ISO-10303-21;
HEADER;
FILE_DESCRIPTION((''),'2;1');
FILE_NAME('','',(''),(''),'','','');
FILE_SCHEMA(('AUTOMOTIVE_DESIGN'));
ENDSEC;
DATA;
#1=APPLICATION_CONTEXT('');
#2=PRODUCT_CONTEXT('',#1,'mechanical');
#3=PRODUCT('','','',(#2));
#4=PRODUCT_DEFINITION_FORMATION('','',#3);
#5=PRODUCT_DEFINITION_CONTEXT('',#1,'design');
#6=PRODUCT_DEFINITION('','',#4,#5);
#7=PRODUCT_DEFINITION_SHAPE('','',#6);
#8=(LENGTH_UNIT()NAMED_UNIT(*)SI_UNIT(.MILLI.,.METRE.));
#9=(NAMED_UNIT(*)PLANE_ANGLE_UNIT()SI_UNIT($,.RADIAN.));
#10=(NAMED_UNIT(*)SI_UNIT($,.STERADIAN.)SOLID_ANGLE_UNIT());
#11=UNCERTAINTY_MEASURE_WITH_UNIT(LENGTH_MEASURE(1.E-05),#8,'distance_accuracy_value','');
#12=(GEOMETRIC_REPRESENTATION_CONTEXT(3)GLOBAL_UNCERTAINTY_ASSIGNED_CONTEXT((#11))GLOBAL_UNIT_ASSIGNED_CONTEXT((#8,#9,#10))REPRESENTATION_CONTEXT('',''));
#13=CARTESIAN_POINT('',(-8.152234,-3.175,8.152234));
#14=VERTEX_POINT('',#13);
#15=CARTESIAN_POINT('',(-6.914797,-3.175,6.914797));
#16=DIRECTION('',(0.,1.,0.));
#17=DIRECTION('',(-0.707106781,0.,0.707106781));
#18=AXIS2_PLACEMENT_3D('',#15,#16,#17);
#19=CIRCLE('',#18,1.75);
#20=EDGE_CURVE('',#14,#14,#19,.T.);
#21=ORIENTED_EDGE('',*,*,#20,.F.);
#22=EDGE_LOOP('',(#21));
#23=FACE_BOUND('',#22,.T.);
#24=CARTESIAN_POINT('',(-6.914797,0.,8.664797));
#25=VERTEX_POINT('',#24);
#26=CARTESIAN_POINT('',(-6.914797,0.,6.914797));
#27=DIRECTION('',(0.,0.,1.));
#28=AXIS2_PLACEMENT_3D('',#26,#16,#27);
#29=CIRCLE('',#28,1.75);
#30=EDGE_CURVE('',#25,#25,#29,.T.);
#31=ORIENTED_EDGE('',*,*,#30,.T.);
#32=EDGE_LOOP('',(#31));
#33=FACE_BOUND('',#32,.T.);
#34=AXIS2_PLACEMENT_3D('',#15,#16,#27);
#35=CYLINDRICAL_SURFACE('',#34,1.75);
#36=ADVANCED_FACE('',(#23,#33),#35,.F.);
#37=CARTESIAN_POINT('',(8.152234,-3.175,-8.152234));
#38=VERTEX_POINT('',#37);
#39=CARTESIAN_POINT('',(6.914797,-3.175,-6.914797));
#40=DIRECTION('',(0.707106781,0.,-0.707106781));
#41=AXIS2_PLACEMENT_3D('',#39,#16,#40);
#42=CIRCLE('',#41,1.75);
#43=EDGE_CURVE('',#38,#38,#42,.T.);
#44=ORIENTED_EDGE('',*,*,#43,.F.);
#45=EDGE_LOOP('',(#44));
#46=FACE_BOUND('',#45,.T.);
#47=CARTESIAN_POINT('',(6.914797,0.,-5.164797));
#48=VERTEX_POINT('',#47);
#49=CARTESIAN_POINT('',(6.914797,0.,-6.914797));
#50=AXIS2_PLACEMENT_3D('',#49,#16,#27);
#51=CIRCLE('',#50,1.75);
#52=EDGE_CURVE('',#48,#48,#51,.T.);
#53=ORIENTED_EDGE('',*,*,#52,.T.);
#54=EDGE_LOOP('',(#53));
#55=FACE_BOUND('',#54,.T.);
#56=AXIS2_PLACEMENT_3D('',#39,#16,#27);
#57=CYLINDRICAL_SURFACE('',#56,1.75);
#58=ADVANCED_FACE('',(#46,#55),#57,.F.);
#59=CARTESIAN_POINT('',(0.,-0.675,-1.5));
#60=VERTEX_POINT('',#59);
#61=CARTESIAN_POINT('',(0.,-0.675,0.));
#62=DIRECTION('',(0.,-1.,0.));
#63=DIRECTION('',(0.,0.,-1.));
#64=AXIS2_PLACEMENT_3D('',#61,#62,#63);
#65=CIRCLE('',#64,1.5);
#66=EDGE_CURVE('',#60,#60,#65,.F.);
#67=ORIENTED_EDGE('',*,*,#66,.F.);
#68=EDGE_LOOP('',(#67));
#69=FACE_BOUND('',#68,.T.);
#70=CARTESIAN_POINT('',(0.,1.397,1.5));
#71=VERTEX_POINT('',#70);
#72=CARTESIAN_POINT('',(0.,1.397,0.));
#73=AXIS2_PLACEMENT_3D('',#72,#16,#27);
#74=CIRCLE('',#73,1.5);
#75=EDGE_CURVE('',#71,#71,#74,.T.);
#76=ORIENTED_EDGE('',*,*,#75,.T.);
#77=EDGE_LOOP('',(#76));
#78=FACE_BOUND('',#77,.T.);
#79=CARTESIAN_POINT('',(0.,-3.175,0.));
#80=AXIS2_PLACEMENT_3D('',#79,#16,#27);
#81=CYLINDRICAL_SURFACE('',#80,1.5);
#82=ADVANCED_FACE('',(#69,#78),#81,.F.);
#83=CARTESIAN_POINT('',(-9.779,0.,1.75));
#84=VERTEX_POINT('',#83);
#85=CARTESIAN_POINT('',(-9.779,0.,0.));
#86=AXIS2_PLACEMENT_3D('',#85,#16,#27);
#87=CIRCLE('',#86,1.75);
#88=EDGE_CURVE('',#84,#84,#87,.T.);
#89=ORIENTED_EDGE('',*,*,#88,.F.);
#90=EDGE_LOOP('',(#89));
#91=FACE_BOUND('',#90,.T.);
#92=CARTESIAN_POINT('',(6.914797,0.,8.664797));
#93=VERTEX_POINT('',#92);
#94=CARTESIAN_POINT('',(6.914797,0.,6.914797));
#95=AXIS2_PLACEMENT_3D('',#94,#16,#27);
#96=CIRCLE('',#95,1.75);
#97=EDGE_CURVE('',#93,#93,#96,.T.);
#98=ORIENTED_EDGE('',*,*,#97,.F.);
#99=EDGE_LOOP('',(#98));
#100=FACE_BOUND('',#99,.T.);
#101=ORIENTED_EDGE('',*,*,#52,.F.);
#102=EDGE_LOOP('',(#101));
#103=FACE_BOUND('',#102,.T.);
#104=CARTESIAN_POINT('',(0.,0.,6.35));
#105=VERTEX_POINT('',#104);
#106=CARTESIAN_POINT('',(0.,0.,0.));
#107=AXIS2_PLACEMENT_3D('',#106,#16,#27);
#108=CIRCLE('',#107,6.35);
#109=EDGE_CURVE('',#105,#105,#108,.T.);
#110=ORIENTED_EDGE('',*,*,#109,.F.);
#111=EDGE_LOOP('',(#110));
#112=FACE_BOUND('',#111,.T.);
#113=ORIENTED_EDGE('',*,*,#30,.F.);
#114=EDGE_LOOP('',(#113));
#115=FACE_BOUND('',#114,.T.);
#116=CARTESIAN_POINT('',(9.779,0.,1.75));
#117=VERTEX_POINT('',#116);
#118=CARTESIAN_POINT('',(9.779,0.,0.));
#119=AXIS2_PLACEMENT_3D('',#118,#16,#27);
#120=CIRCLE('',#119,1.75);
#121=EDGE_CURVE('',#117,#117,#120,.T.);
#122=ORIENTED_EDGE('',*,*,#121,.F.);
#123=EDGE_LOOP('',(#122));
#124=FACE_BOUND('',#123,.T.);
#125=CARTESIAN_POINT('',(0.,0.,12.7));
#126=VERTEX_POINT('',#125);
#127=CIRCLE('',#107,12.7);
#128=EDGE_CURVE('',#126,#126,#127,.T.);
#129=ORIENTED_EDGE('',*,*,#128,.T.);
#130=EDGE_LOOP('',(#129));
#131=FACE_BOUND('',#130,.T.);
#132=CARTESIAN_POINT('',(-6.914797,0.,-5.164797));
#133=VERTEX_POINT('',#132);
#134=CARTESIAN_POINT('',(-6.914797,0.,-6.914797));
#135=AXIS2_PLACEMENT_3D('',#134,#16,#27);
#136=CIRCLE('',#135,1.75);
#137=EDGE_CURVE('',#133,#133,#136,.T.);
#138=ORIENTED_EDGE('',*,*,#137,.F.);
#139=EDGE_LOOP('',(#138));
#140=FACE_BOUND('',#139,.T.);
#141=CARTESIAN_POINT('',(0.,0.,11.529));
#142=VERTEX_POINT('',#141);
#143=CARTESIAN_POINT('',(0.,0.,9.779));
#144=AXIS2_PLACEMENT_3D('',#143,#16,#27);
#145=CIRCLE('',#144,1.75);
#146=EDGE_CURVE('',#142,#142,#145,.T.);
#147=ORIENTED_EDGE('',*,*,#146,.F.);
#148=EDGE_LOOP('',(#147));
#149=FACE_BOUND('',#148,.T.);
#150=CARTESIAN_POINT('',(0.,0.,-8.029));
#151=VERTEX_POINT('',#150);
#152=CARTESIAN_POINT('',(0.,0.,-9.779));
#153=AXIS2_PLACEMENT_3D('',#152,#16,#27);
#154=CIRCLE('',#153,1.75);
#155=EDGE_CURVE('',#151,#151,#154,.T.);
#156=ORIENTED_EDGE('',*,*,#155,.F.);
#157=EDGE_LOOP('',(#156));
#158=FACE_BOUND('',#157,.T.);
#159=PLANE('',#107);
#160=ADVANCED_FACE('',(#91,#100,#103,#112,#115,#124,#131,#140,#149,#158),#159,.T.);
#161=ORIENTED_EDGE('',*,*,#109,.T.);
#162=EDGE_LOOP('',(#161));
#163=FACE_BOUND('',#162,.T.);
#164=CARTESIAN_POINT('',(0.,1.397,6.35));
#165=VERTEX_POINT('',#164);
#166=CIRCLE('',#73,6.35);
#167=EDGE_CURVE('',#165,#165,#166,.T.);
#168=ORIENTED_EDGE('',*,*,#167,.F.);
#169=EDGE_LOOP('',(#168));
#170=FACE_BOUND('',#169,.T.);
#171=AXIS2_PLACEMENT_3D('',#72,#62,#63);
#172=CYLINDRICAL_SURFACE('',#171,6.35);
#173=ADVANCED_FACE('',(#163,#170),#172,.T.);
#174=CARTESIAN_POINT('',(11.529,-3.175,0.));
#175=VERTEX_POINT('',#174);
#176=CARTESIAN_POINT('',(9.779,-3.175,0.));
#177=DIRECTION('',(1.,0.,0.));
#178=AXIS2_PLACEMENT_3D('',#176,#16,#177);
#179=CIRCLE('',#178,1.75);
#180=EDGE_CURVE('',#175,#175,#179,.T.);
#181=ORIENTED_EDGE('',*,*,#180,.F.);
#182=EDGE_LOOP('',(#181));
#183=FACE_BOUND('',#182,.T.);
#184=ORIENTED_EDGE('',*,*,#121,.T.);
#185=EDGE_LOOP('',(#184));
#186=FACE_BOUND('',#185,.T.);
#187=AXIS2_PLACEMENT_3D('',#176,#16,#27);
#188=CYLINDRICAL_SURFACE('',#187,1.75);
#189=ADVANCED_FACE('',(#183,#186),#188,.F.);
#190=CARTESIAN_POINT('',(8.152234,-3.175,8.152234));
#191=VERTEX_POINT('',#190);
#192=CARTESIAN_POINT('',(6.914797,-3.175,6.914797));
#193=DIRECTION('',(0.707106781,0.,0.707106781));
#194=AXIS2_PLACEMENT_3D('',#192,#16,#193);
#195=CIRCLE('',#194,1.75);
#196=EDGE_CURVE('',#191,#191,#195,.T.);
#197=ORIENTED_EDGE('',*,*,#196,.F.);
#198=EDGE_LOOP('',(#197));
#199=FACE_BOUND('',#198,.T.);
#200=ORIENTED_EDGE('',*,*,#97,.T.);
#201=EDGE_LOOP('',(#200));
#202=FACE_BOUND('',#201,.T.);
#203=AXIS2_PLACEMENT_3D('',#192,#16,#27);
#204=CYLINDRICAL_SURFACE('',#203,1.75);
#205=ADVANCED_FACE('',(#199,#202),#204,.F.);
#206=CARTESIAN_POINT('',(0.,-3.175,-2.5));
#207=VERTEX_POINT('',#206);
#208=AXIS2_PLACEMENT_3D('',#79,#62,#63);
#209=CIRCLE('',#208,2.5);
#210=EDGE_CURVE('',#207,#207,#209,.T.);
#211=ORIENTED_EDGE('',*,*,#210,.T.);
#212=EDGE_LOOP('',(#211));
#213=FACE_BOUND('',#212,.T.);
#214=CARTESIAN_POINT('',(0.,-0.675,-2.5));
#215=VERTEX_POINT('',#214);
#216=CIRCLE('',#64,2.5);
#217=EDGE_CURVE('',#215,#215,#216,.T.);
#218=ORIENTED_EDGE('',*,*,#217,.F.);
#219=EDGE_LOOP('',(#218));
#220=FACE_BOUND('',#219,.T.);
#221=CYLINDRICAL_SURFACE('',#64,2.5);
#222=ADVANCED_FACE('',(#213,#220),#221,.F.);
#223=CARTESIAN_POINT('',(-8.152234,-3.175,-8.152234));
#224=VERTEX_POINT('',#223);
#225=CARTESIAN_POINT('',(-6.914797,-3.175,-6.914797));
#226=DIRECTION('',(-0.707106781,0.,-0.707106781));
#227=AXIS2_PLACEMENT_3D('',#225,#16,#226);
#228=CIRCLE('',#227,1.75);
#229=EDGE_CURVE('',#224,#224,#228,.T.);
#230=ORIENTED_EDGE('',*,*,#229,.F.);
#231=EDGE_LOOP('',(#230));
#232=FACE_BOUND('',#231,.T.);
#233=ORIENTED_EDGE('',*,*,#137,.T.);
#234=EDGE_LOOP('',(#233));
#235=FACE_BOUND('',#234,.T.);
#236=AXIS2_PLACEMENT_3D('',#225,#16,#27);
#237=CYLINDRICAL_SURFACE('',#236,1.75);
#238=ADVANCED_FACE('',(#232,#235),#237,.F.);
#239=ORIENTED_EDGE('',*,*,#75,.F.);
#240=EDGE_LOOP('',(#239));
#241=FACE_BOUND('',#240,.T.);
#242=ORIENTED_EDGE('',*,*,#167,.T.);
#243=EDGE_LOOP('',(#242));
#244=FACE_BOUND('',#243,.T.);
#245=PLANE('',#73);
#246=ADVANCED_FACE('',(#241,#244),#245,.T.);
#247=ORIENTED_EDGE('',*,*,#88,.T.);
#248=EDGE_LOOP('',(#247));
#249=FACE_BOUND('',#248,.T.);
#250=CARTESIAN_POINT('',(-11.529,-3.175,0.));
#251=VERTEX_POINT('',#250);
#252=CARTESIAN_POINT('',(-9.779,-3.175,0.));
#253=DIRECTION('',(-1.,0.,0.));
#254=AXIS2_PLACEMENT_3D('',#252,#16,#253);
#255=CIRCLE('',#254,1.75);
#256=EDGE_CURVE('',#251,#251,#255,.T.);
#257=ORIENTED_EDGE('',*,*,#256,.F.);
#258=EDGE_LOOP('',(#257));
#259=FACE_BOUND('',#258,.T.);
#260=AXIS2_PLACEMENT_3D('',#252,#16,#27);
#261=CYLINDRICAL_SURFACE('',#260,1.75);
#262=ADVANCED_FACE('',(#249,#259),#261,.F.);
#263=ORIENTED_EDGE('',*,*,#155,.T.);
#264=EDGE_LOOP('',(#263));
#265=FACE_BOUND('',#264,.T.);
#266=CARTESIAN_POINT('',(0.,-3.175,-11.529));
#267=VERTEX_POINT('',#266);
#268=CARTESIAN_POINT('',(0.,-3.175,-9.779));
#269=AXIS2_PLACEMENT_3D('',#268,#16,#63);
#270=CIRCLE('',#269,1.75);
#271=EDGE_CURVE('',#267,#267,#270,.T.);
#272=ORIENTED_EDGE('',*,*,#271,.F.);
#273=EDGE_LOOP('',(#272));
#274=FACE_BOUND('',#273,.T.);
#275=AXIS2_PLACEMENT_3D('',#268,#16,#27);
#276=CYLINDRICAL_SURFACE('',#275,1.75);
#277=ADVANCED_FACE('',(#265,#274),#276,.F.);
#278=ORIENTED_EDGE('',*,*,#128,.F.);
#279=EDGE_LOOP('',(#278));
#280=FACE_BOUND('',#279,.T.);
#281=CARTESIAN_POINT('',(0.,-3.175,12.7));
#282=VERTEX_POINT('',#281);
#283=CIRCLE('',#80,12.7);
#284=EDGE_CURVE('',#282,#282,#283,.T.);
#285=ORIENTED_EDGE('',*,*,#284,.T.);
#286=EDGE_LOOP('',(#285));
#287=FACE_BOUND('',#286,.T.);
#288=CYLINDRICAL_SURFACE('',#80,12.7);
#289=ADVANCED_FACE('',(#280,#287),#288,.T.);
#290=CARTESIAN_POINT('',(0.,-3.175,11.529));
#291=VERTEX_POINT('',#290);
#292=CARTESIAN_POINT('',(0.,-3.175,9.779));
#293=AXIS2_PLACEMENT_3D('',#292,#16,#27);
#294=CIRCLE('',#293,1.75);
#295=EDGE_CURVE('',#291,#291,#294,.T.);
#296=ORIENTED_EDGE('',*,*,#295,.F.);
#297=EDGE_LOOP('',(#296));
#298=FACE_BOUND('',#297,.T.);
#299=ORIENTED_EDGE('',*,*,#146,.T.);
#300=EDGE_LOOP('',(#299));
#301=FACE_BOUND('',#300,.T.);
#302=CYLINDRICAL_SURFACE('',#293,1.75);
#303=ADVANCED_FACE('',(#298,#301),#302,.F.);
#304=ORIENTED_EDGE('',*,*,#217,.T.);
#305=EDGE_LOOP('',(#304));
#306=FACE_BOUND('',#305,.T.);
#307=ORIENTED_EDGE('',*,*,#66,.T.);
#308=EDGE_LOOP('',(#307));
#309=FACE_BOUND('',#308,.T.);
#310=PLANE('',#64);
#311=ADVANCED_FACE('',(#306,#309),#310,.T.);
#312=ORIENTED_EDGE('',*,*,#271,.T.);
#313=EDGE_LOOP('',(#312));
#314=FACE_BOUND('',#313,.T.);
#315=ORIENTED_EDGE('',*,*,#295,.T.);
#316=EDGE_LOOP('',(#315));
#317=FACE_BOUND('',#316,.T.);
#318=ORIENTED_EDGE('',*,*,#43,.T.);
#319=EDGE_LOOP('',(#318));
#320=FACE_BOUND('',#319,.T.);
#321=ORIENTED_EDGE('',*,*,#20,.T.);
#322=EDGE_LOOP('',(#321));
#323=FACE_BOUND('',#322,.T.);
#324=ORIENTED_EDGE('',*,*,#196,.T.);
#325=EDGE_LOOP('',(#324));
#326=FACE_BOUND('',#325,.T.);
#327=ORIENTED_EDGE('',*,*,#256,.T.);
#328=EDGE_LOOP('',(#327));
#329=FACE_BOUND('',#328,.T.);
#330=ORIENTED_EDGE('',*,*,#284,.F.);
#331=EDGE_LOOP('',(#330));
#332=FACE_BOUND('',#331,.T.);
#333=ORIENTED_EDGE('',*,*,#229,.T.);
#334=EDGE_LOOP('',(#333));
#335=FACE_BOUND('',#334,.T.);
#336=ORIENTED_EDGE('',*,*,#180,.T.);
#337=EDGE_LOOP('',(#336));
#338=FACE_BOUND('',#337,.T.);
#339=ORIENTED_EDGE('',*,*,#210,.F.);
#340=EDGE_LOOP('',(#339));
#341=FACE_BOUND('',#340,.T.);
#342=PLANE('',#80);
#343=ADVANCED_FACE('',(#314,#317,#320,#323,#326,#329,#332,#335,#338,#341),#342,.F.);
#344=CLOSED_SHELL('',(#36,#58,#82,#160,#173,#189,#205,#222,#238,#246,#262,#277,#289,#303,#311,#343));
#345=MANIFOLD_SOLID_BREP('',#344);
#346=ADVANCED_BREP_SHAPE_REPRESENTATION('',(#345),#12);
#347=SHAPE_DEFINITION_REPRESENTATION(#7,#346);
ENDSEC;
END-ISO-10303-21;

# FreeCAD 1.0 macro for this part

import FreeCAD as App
import Part
import Sketcher

doc = App.newDocument("Part")
body = doc.addObject("PartDesign::Body", "Body")

sketch1 = body.newObject("Sketcher::SketchObject", "Sketch")
sketch1.AttachmentSupport = (doc.getObject("XZ_Plane"), [""])
sketch1.MapMode = "FlatFace"
sketch1.addGeometry(Part.Circle(App.Vector(0, 0, 0), App.Vector(0, 0, 1), 12.7), False)
sketch1.addConstraint([
    Sketcher.Constraint("Coincident", 0, 3, -1, 1),
    Sketcher.Constraint("Diameter", 0, 25.4),
])
pad1 = body.newObject("PartDesign::Pad", "Pad")
pad1.Profile = sketch1
pad1.Length = 3.175

sketch2 = body.newObject("Sketcher::SketchObject", "Sketch001")
sketch2.AttachmentSupport = (doc.getObject("XZ_Plane"), [""])
sketch2.MapMode = "FlatFace"
sketch2.addGeometry(Part.Circle(App.Vector(0, 0, 0), App.Vector(0, 0, 1), 6.35), False)
sketch2.addConstraint([
    Sketcher.Constraint("Coincident", 0, 3, -1, 1),
    Sketcher.Constraint("Diameter", 0, 12.7),
])
pad2 = body.newObject("PartDesign::Pad", "Pad001")
pad2.Profile = sketch2
pad2.Length = 1.397
pad2.Reversed = True

sketch3 = body.newObject("Sketcher::SketchObject", "Sketch002")
sketch3.AttachmentSupport = (doc.getObject("XZ_Plane"), [""])
sketch3.MapMode = "FlatFace"
sketch3.AttachmentOffset = App.Placement(App.Vector(0, 0, -1.397), App.Rotation())
sketch3.addGeometry(Part.Circle(App.Vector(0, 0, 0), App.Vector(0, 0, 1), 1.5), False)
sketch3.addConstraint([
    Sketcher.Constraint("Coincident", 0, 3, -1, 1),
    Sketcher.Constraint("Diameter", 0, 3.0),
])
pocket1 = body.newObject("PartDesign::Pocket", "Pocket")
pocket1.Profile = sketch3
pocket1.Type = "ThroughAll"
pocket1.Midplane = True

sketch4 = body.newObject("Sketcher::SketchObject", "Sketch003")
sketch4.AttachmentSupport = (doc.getObject("XZ_Plane"), [""])
sketch4.MapMode = "FlatFace"
sketch4.addGeometry(Part.Circle(App.Vector(0, 9.779, 0), App.Vector(0, 0, 1), 1.75), False)
sketch4.addConstraint([
    Sketcher.Constraint("PointOnObject", 0, 3, -2),
    Sketcher.Constraint("Diameter", 0, 3.5),
    Sketcher.Constraint("DistanceY", -1, 1, 0, 3, 9.779),
])
pocket2 = body.newObject("PartDesign::Pocket", "Pocket001")
pocket2.Profile = sketch4
pocket2.Length = 38.477973
pocket2.Midplane = True
doc.recompute()

polarpattern = body.newObject("PartDesign::PolarPattern", "PolarPattern")
polarpattern.Originals = [pocket2]
polarpattern.Axis = (doc.getObject("Y_Axis"), [""])
polarpattern.Angle = 360
polarpattern.Occurrences = 8
body.Tip = polarpattern

sketch5 = body.newObject("Sketcher::SketchObject", "Sketch004")
sketch5.AttachmentSupport = (doc.getObject("XZ_Plane"), [""])
sketch5.MapMode = "FlatFace"
sketch5.AttachmentOffset = App.Placement(App.Vector(0, 0, 3.175), App.Rotation())
sketch5.addGeometry(Part.Circle(App.Vector(0, 0, 0), App.Vector(0, 0, 1), 2.5), False)
sketch5.addConstraint([
    Sketcher.Constraint("Coincident", 0, 3, -1, 1),
    Sketcher.Constraint("Diameter", 0, 5.0),
])
pocket3 = body.newObject("PartDesign::Pocket", "Pocket002")
pocket3.Profile = sketch5
pocket3.Length = 2.5

doc.recompute()
